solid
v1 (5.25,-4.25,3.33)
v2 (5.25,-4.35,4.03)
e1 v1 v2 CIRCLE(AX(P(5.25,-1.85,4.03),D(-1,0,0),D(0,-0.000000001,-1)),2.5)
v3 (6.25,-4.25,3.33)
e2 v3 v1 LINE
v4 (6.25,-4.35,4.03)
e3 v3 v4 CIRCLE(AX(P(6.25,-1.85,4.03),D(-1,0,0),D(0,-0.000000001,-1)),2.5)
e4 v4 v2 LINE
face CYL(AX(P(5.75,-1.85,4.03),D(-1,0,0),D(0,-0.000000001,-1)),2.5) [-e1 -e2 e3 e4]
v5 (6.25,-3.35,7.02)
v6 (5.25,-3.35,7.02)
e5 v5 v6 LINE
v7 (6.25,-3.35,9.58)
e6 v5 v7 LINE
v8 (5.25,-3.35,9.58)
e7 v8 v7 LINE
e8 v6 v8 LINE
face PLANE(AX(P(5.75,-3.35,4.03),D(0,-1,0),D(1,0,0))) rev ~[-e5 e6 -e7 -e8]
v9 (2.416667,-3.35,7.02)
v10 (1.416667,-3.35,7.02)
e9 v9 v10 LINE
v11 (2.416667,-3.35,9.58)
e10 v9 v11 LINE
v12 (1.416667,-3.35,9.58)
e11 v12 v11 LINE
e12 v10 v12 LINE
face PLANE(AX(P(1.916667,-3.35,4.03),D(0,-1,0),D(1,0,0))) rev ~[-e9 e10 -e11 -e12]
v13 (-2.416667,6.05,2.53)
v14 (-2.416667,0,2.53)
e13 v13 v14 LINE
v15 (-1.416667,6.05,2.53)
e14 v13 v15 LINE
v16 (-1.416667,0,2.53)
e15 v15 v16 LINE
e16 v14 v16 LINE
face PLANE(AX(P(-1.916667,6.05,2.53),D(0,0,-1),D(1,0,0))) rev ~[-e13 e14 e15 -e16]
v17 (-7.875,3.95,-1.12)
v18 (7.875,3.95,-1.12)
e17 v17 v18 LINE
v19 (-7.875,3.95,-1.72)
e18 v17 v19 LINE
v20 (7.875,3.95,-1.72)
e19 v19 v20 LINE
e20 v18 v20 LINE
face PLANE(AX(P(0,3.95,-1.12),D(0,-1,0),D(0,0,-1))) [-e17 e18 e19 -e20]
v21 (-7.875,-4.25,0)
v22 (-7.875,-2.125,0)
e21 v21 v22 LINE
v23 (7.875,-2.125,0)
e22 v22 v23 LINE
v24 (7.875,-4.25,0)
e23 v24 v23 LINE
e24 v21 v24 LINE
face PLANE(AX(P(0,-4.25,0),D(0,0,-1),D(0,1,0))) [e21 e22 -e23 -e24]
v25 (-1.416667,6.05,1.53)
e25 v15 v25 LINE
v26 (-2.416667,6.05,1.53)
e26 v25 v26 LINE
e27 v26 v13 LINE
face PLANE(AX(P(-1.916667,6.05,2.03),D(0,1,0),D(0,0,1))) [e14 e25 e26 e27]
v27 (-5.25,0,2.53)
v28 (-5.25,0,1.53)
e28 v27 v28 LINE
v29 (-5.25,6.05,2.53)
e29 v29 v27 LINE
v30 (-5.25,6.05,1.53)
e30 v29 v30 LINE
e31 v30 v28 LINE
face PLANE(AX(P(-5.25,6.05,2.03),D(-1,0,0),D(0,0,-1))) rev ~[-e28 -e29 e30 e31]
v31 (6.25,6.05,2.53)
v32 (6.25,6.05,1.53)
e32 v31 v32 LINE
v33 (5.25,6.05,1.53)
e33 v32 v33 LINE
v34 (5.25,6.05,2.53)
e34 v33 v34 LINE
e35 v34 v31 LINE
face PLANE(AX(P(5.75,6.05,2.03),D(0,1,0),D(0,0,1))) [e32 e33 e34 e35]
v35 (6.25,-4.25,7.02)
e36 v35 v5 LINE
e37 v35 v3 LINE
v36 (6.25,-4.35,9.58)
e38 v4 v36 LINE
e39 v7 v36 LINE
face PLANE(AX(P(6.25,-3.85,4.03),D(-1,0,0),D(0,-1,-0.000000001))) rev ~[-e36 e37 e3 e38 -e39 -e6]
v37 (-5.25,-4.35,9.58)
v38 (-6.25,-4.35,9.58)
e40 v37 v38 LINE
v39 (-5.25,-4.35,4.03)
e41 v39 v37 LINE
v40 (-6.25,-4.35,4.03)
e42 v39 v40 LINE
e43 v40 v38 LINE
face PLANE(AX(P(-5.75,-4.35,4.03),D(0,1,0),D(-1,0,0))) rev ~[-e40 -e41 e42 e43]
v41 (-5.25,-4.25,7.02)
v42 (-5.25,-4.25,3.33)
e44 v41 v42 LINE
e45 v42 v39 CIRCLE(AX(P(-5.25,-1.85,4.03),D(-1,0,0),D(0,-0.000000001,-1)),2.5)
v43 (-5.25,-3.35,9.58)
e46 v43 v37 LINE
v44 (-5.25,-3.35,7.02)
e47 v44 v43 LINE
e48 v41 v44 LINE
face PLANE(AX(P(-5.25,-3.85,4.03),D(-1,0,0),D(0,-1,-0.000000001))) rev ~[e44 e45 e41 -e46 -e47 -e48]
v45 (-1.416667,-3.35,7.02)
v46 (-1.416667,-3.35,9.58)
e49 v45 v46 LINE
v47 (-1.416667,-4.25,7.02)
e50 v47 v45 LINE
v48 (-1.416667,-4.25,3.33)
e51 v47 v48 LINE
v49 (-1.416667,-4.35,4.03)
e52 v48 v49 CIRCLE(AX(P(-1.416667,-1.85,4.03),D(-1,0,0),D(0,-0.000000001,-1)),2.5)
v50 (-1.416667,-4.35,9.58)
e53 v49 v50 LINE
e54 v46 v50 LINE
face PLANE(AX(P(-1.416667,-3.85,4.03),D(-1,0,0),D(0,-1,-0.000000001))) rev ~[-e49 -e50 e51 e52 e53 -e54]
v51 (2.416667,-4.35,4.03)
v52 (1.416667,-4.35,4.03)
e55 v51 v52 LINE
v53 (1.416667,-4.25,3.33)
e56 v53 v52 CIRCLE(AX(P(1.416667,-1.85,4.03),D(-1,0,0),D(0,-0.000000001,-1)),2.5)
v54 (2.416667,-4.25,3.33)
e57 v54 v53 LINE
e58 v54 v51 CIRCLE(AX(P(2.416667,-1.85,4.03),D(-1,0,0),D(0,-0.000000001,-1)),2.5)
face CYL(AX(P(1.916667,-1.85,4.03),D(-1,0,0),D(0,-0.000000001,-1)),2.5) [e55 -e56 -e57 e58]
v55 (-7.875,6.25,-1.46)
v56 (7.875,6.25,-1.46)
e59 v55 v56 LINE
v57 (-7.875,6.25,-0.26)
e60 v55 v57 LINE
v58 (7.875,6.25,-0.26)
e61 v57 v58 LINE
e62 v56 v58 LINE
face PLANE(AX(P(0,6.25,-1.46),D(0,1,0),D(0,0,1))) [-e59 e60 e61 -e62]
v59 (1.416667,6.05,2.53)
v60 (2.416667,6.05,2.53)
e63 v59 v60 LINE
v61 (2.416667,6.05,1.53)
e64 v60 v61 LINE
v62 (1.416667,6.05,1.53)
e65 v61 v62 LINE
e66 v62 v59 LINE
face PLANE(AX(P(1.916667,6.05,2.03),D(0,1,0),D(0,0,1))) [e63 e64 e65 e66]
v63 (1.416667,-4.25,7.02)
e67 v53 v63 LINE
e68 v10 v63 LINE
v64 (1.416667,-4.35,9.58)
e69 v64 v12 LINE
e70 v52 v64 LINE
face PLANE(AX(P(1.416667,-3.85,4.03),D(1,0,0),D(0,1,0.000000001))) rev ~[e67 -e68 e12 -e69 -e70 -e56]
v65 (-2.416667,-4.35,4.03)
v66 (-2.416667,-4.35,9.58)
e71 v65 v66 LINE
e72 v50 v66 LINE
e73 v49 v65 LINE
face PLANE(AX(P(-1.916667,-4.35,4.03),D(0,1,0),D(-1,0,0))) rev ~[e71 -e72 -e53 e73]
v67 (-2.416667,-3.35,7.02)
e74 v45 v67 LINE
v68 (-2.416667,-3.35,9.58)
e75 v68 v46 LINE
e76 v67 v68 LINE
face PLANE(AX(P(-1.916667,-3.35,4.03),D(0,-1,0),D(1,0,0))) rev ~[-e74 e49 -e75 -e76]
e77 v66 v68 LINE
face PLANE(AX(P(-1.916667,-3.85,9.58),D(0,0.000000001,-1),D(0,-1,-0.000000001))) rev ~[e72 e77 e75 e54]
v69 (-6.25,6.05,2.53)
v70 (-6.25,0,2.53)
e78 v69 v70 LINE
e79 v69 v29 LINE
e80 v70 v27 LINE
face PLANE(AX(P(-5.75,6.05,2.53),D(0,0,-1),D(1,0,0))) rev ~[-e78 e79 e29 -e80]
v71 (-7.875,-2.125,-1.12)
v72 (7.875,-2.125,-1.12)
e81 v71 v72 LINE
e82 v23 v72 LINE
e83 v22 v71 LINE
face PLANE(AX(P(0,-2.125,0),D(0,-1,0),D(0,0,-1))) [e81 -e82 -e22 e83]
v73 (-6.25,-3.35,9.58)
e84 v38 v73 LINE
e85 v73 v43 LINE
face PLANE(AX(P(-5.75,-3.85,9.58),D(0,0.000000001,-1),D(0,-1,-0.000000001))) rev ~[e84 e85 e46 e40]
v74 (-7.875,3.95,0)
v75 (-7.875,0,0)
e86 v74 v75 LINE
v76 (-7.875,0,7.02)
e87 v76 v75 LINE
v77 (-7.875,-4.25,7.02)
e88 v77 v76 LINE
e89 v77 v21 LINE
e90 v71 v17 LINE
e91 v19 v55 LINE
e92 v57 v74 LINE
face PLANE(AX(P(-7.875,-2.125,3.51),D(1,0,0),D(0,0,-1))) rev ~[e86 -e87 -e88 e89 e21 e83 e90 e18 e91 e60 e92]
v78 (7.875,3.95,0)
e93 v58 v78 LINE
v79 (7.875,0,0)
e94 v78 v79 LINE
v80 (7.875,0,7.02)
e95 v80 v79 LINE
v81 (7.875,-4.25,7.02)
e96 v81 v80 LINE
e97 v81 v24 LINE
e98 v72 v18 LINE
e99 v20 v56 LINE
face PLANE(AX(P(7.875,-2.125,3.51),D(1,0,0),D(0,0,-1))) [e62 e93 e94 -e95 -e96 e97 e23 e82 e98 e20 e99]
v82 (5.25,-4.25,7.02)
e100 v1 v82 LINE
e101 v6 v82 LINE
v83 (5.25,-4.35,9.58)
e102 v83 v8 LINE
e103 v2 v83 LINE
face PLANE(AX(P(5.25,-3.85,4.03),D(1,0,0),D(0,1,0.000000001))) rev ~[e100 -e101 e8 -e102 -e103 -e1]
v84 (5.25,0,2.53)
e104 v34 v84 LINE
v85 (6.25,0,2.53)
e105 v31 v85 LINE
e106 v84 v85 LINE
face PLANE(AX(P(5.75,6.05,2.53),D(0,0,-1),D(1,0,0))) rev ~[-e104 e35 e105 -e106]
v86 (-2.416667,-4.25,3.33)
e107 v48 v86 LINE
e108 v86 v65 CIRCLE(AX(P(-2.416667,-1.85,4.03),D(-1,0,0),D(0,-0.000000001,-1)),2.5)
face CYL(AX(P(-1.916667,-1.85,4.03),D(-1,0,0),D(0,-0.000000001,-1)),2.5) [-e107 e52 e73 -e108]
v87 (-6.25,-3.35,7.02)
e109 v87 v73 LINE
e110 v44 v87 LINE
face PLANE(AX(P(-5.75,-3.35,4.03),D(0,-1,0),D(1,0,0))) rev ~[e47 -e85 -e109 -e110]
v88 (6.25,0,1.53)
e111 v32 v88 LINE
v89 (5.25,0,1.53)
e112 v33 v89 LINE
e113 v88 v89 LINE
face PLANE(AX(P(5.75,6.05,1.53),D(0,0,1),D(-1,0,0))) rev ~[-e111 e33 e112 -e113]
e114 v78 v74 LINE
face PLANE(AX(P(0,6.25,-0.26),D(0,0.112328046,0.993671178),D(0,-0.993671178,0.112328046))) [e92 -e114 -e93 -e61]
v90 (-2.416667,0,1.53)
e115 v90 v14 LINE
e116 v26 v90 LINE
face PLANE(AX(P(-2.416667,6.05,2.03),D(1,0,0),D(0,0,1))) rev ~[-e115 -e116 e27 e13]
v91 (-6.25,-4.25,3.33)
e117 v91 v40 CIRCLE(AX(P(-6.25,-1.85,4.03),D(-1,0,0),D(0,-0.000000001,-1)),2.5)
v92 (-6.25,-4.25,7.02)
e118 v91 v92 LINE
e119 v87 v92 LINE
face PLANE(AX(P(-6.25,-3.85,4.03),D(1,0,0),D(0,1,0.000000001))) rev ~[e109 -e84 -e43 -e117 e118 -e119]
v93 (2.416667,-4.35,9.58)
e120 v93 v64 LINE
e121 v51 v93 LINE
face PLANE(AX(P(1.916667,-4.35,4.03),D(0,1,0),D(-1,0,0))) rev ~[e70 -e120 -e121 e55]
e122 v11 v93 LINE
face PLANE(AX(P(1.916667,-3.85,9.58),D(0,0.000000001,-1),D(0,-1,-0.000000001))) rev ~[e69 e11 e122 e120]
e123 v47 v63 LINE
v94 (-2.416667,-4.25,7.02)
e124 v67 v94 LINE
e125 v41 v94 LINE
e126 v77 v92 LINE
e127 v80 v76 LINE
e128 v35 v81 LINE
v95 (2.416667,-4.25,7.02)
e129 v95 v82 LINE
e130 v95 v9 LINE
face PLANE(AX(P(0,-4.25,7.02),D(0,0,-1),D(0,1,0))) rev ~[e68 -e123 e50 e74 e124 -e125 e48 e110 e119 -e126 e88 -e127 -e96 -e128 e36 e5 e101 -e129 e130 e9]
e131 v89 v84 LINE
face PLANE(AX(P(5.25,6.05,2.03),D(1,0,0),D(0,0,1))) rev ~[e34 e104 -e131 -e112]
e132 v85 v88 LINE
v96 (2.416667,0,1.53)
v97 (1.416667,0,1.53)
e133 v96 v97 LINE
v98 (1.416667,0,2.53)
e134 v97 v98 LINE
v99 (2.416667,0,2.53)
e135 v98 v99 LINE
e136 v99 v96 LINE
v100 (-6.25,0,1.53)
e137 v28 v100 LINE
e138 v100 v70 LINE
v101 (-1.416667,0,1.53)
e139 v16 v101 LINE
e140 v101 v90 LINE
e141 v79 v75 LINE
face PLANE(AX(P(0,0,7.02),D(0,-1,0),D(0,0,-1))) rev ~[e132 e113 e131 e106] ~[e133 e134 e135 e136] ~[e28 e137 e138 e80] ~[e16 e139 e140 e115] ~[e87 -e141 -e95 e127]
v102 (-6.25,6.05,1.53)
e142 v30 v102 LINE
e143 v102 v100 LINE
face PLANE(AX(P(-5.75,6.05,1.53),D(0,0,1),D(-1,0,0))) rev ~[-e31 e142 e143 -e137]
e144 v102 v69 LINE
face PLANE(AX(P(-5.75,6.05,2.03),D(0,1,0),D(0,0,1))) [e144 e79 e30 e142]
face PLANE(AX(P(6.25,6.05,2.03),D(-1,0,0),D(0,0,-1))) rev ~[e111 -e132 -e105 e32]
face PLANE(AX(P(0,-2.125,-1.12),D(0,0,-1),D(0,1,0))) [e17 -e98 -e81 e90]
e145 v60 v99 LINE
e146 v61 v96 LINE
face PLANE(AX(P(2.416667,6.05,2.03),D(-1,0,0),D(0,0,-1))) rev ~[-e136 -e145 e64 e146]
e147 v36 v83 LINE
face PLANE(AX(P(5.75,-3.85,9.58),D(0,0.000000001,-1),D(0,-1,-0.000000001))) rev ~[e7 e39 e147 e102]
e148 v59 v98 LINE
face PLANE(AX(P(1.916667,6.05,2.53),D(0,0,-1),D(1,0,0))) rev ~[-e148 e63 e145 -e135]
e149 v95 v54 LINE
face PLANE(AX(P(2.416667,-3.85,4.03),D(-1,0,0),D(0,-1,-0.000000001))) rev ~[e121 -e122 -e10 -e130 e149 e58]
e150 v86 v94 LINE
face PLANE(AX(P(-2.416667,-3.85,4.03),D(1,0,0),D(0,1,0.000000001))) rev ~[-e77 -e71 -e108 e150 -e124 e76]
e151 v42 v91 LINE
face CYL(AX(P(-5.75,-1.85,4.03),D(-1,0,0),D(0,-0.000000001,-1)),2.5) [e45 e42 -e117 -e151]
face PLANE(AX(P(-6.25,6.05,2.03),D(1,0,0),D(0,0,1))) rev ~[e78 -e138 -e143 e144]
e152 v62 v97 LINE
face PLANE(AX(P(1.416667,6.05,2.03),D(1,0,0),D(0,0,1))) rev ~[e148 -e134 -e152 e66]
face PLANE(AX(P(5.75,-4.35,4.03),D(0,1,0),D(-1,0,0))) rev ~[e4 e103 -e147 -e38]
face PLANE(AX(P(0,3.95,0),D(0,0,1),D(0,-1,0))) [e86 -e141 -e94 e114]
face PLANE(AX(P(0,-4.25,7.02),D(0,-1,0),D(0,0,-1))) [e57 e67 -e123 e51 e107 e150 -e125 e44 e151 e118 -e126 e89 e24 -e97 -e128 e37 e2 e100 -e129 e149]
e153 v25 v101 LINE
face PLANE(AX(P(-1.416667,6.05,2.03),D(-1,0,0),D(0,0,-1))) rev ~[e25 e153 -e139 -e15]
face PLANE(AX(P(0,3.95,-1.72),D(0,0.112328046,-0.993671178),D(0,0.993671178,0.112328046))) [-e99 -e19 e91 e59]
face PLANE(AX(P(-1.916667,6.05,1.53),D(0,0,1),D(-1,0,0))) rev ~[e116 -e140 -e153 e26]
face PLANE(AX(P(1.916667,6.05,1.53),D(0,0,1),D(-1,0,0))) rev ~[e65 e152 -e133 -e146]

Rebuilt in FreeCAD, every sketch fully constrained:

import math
import FreeCAD as App
import Part
import Sketcher
from FreeCAD import Vector
Q = App.Units.Quantity

doc = App.newDocument("Part")
body = doc.addObject("PartDesign::Body", "Body")

# Sketch on YZ plane
sketch1 = body.newObject("Sketcher::SketchObject", "Sketch")
sketch1.AttachmentSupport = (doc.getObject("YZ_Plane"), [""])
sketch1.MapMode = "FlatFace"
sketch1.addGeometry([
    Part.LineSegment(Vector(0, 7.02, 0), Vector(-4.25, 7.02, 0)),  # 0
    Part.LineSegment(Vector(-4.25, 7.02, 0), Vector(-4.25, 0, 0)),  # 1
    Part.LineSegment(Vector(-4.25, 0, 0), Vector(-2.125, 0, 0)),  # 2
    Part.LineSegment(Vector(-2.125, 0, 0), Vector(-2.125, -1.12, 0)),  # 3
    Part.LineSegment(Vector(-2.125, -1.12, 0), Vector(3.95, -1.12, 0)),  # 4
    Part.LineSegment(Vector(3.95, -1.12, 0), Vector(3.95, -1.72, 0)),  # 5
    Part.LineSegment(Vector(3.95, -1.72, 0), Vector(6.25, -1.46, 0)),  # 6
    Part.LineSegment(Vector(6.25, -1.46, 0), Vector(6.25, -0.26, 0)),  # 7
    Part.LineSegment(Vector(6.25, -0.26, 0), Vector(3.95, 0, 0)),  # 8
    Part.LineSegment(Vector(3.95, 0, 0), Vector(0, 0, 0)),  # 9
    Part.LineSegment(Vector(0, 0, 0), Vector(0, 7.02, 0)),  # 10
], False)
sketch1.addConstraint([
    Sketcher.Constraint("Coincident", 0, 2, 1, 1),
    Sketcher.Constraint("Coincident", 1, 2, 2, 1),
    Sketcher.Constraint("Coincident", 2, 2, 3, 1),
    Sketcher.Constraint("Coincident", 3, 2, 4, 1),
    Sketcher.Constraint("Coincident", 4, 2, 5, 1),
    Sketcher.Constraint("Coincident", 5, 2, 6, 1),
    Sketcher.Constraint("Coincident", 6, 2, 7, 1),
    Sketcher.Constraint("Coincident", 7, 2, 8, 1),
    Sketcher.Constraint("Coincident", 8, 2, 9, 1),
    Sketcher.Constraint("Coincident", 9, 2, 10, 1),
    Sketcher.Constraint("Coincident", 10, 2, 0, 1),
    Sketcher.Constraint("Horizontal", 0),
    Sketcher.Constraint("Vertical", 1),
    Sketcher.Constraint("Horizontal", 2),
    Sketcher.Constraint("Vertical", 3),
    Sketcher.Constraint("Horizontal", 4),
    Sketcher.Constraint("Vertical", 5),
    Sketcher.Constraint("Vertical", 7),
    Sketcher.Constraint("Horizontal", 9),
    Sketcher.Constraint("Vertical", 10),
    Sketcher.Constraint("Coincident", 9, 2, -1, 1),
    Sketcher.Constraint("PointOnObject", 1, 2, -1),
    Sketcher.Constraint("Vertical", 5, 2, 8, 2),
    Sketcher.Constraint("Equal", 6, 8),
    Sketcher.Constraint("DistanceY", 5, 2, 5, 1, Q("0.6 mm")),
    Sketcher.Constraint("DistanceY", 7, 1, 7, 2, Q("1.2 mm")),
    Sketcher.Constraint("DistanceX", 0, 2, 0, 1, Q("4.25 mm")),
    Sketcher.Constraint("DistanceX", 9, 2, 9, 1, Q("3.95 mm")),
    Sketcher.Constraint("DistanceY", 1, 2, 1, 1, Q("7.02 mm")),
    Sketcher.Constraint("DistanceY", 3, 2, 3, 1, Q("1.12 mm")),
    Sketcher.Constraint("DistanceX", 5, 2, 6, 2, Q("2.3 mm")),
    Sketcher.Constraint("DistanceX", 2, 1, 2, 2, Q("2.125 mm")),
])
pad1 = body.newObject("PartDesign::Pad", "Pad")
pad1.Profile = sketch1
pad1.Length = 15.75
pad1.Midplane = True

# Sketch on XZ plane
sketch2 = body.newObject("Sketcher::SketchObject", "Sketch001")
sketch2.AttachmentSupport = (doc.getObject("XZ_Plane"), [""])
sketch2.MapMode = "FlatFace"
sketch2.AttachmentOffset = App.Placement(Vector(0, 0, -6.05), App.Rotation())
sketch2.addGeometry([
    Part.LineSegment(Vector(5.25, 1.53, 0), Vector(5.25, 2.53, 0)),
    Part.LineSegment(Vector(5.25, 2.53, 0), Vector(6.25, 2.53, 0)),
    Part.LineSegment(Vector(6.25, 2.53, 0), Vector(6.25, 1.53, 0)),
    Part.LineSegment(Vector(6.25, 1.53, 0), Vector(5.25, 1.53, 0)),
], False)
sketch2.addConstraint([
    Sketcher.Constraint("Coincident", 0, 2, 1, 1),
    Sketcher.Constraint("Coincident", 1, 2, 2, 1),
    Sketcher.Constraint("Coincident", 2, 2, 3, 1),
    Sketcher.Constraint("Coincident", 3, 2, 0, 1),
    Sketcher.Constraint("Vertical", 0),
    Sketcher.Constraint("Horizontal", 1),
    Sketcher.Constraint("Vertical", 2),
    Sketcher.Constraint("Horizontal", 3),
    Sketcher.Constraint("Equal", 3, 0),
    Sketcher.Constraint("DistanceX", 1, 1, 1, 2, Q("1 mm")),
    Sketcher.Constraint("DistanceX", -1, 1, 0, 2, Q("5.25 mm")),
    Sketcher.Constraint("DistanceY", -1, 1, 0, 2, Q("2.53 mm")),
])

# Sketch on YZ plane
sketch3 = body.newObject("Sketcher::SketchObject", "Sketch002")
sketch3.AttachmentSupport = (doc.getObject("YZ_Plane"), [""])
sketch3.MapMode = "FlatFace"
sketch3.AttachmentOffset = App.Placement(Vector(0, 0, 5.75), App.Rotation())
sketch3.addGeometry([
    Part.LineSegment(Vector(6.05, 2.03, 0), Vector(-1.85, 2.03, 0)),
    Part.ArcOfCircle(Part.Circle(Vector(-1.85, 4.03, 0), Vector(0, 0, 1), 2), math.radians(-180), math.radians(-90)),
    Part.LineSegment(Vector(-3.85, 4.03, 0), Vector(-3.85, 9.58, 0)),
], False)
sketch3.addConstraint([
    Sketcher.Constraint("Tangent", 0, 2, 1, 2),
    Sketcher.Constraint("Tangent", 1, 1, 2, 1),
    Sketcher.Constraint("Horizontal", 0),
    Sketcher.Constraint("Vertical", 2),
    Sketcher.Constraint("Radius", 1, Q("2 mm")),
    Sketcher.Constraint("DistanceX", 0, 2, 0, 1, Q("7.9 mm")),
    Sketcher.Constraint("DistanceY", 2, 1, 2, 2, Q("5.55 mm")),
    Sketcher.Constraint("DistanceX", 1, 3, -1, 1, Q("1.85 mm")),
    Sketcher.Constraint("DistanceY", -1, 1, 1, 3, Q("4.03 mm")),
])
doc.recompute()

additivepipe = body.newObject("PartDesign::AdditivePipe", "AdditivePipe")
additivepipe.Profile = sketch2
additivepipe.Spine = (sketch3, ["Edge1", "Edge2", "Edge3"])
doc.recompute()

linearpattern = body.newObject("PartDesign::LinearPattern", "LinearPattern")
linearpattern.Originals = [additivepipe]
linearpattern.Direction = (doc.getObject("X_Axis"), [""])
linearpattern.Mode = "offset"
linearpattern.Offset = 3.833333
linearpattern.Occurrences = 4
linearpattern.Reversed = True
body.Tip = linearpattern

doc.recompute()
